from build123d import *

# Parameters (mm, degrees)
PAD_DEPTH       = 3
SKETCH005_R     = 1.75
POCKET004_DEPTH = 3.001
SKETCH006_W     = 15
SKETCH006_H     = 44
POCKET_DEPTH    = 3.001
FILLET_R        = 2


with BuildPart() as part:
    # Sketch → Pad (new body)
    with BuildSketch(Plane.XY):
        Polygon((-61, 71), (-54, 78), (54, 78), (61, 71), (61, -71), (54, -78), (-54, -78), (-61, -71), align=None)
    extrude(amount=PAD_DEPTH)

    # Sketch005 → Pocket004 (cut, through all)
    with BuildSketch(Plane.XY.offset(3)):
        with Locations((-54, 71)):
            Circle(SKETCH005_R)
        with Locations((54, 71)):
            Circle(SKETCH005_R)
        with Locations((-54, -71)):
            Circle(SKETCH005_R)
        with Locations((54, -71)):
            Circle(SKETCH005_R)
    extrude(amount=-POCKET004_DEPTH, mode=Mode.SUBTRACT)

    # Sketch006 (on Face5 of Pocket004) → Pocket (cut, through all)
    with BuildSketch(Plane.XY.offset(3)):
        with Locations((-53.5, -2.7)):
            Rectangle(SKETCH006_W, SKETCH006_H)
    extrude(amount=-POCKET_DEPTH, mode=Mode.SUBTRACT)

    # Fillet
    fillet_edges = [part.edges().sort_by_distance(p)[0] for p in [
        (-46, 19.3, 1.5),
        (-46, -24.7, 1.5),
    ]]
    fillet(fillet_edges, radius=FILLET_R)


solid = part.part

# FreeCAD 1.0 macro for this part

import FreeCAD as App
import Part
import Sketcher


def edges_at(feature, points):
    """Names of the edges that pass closest to the given points."""
    edges = feature.Shape.Edges
    near = lambda p: min(range(len(edges)), key=lambda i: edges[i].distToShape(Part.Vertex(*p))[0])
    return sorted({f"Edge{near(p) + 1}" for p in points})

doc = App.newDocument("Part")
body = doc.addObject("PartDesign::Body", "Body")

sketch1 = body.newObject("Sketcher::SketchObject", "Sketch")
sketch1.AttachmentSupport = (doc.getObject("XY_Plane"), [""])
sketch1.MapMode = "FlatFace"
sketch1.addGeometry([
    Part.LineSegment(App.Vector(-54, 78, 0), App.Vector(-61, 71, 0)),
    Part.LineSegment(App.Vector(-61, 71, 0), App.Vector(-61, -71, 0)),
    Part.LineSegment(App.Vector(-61, -71, 0), App.Vector(-54, -78, 0)),
    Part.LineSegment(App.Vector(-54, -78, 0), App.Vector(54, -78, 0)),
    Part.LineSegment(App.Vector(54, -78, 0), App.Vector(61, -71, 0)),
    Part.LineSegment(App.Vector(61, -71, 0), App.Vector(61, 71, 0)),
    Part.LineSegment(App.Vector(61, 71, 0), App.Vector(54, 78, 0)),
    Part.LineSegment(App.Vector(54, 78, 0), App.Vector(-54, 78, 0)),
], False)
sketch1.addConstraint([
    Sketcher.Constraint("Coincident", 0, 2, 1, 1),
    Sketcher.Constraint("Coincident", 1, 2, 2, 1),
    Sketcher.Constraint("Coincident", 2, 2, 3, 1),
    Sketcher.Constraint("Coincident", 3, 2, 4, 1),
    Sketcher.Constraint("Coincident", 4, 2, 5, 1),
    Sketcher.Constraint("Coincident", 5, 2, 6, 1),
    Sketcher.Constraint("Coincident", 6, 2, 7, 1),
    Sketcher.Constraint("Coincident", 7, 2, 0, 1),
    Sketcher.Constraint("Vertical", 1),
    Sketcher.Constraint("Horizontal", 3),
    Sketcher.Constraint("Vertical", 5),
    Sketcher.Constraint("Horizontal", 7),
    Sketcher.Constraint("Symmetric", 0, 2, 4, 2, -1, 1),
    Sketcher.Constraint("Symmetric", 2, 2, 6, 2, -1, 1),
    Sketcher.Constraint("Perpendicular", 0, 2),
    Sketcher.Constraint("Perpendicular", 2, 4),
    Sketcher.Constraint("Perpendicular", 4, 6),
    Sketcher.Constraint("Horizontal", 1, 2, 4, 2),
    Sketcher.Constraint("Vertical", 3, 2, 6, 2),
    Sketcher.Constraint("DistanceX", 3, 1, 3, 2, 108.0),
    Sketcher.Constraint("DistanceY", 1, 2, 1, 1, 142.0),
    Sketcher.Constraint("DistanceX", 0, 2, -1, 1, 61.0),
])
pad1 = body.newObject("PartDesign::Pad", "Pad")
pad1.Profile = sketch1
pad1.Length = 3

sketch2 = body.newObject("Sketcher::SketchObject", "Sketch001")
sketch2.AttachmentSupport = (doc.getObject("XY_Plane"), [""])
sketch2.MapMode = "FlatFace"
sketch2.AttachmentOffset = App.Placement(App.Vector(0, 0, 3), App.Rotation())
sketch2.addGeometry([
    Part.Circle(App.Vector(-54, 71, 0), App.Vector(0, 0, 1), 1.8),
    Part.Circle(App.Vector(54, 71, 0), App.Vector(0, 0, 1), 1.8),
    Part.Circle(App.Vector(-54, -71, 0), App.Vector(0, 0, 1), 1.8),
    Part.Circle(App.Vector(54, -71, 0), App.Vector(0, 0, 1), 1.8),
], False)
sketch2.addConstraint([
    Sketcher.Constraint("Equal", 0, 1),
    Sketcher.Constraint("Equal", 1, 2),
    Sketcher.Constraint("Equal", 2, 3),
    Sketcher.Constraint("Symmetric", 1, 3, 2, 3, -1, 1),
    Sketcher.Constraint("Symmetric", 0, 3, 3, 3, -1, 1),
    Sketcher.Constraint("Symmetric", 0, 3, 1, 3, -2),
    Sketcher.Constraint("Diameter", 0, 3.5),
    Sketcher.Constraint("DistanceX", 0, 3, -1, 1, 54.0),
    Sketcher.Constraint("DistanceY", -1, 1, 0, 3, 71.0),
])
pocket1 = body.newObject("PartDesign::Pocket", "Pocket")
pocket1.Profile = sketch2
pocket1.Type = "ThroughAll"

sketch3 = body.newObject("Sketcher::SketchObject", "Sketch002")
sketch3.AttachmentSupport = (doc.getObject("XY_Plane"), [""])
sketch3.MapMode = "FlatFace"
sketch3.AttachmentOffset = App.Placement(App.Vector(0, 0, 3), App.Rotation())
sketch3.addGeometry([
    Part.LineSegment(App.Vector(-61, 19, 0), App.Vector(-61, -25, 0)),
    Part.LineSegment(App.Vector(-61, -25, 0), App.Vector(-46, -25, 0)),
    Part.LineSegment(App.Vector(-46, -25, 0), App.Vector(-46, 19, 0)),
    Part.LineSegment(App.Vector(-46, 19, 0), App.Vector(-61, 19, 0)),
], False)
sketch3.addConstraint([
    Sketcher.Constraint("Coincident", 0, 2, 1, 1),
    Sketcher.Constraint("Coincident", 1, 2, 2, 1),
    Sketcher.Constraint("Coincident", 2, 2, 3, 1),
    Sketcher.Constraint("Coincident", 3, 2, 0, 1),
    Sketcher.Constraint("Vertical", 0),
    Sketcher.Constraint("Horizontal", 1),
    Sketcher.Constraint("Vertical", 2),
    Sketcher.Constraint("Horizontal", 3),
    Sketcher.Constraint("DistanceX", 1, 1, 1, 2, 15.0),
    Sketcher.Constraint("DistanceY", 0, 2, 0, 1, 44.0),
    Sketcher.Constraint("DistanceX", 0, 2, -1, 1, 61.0),
    Sketcher.Constraint("DistanceY", 0, 2, -1, 1, 24.7),
])
pocket2 = body.newObject("PartDesign::Pocket", "Pocket001")
pocket2.Profile = sketch3
pocket2.Type = "ThroughAll"
doc.recompute()

fillet = body.newObject("PartDesign::Fillet", "Fillet")
fillet.Base = (pocket2, edges_at(pocket2, [(-46, 19.3, 1.5), (-46, -24.7, 1.5)]))
fillet.Radius = 2

doc.recompute()
